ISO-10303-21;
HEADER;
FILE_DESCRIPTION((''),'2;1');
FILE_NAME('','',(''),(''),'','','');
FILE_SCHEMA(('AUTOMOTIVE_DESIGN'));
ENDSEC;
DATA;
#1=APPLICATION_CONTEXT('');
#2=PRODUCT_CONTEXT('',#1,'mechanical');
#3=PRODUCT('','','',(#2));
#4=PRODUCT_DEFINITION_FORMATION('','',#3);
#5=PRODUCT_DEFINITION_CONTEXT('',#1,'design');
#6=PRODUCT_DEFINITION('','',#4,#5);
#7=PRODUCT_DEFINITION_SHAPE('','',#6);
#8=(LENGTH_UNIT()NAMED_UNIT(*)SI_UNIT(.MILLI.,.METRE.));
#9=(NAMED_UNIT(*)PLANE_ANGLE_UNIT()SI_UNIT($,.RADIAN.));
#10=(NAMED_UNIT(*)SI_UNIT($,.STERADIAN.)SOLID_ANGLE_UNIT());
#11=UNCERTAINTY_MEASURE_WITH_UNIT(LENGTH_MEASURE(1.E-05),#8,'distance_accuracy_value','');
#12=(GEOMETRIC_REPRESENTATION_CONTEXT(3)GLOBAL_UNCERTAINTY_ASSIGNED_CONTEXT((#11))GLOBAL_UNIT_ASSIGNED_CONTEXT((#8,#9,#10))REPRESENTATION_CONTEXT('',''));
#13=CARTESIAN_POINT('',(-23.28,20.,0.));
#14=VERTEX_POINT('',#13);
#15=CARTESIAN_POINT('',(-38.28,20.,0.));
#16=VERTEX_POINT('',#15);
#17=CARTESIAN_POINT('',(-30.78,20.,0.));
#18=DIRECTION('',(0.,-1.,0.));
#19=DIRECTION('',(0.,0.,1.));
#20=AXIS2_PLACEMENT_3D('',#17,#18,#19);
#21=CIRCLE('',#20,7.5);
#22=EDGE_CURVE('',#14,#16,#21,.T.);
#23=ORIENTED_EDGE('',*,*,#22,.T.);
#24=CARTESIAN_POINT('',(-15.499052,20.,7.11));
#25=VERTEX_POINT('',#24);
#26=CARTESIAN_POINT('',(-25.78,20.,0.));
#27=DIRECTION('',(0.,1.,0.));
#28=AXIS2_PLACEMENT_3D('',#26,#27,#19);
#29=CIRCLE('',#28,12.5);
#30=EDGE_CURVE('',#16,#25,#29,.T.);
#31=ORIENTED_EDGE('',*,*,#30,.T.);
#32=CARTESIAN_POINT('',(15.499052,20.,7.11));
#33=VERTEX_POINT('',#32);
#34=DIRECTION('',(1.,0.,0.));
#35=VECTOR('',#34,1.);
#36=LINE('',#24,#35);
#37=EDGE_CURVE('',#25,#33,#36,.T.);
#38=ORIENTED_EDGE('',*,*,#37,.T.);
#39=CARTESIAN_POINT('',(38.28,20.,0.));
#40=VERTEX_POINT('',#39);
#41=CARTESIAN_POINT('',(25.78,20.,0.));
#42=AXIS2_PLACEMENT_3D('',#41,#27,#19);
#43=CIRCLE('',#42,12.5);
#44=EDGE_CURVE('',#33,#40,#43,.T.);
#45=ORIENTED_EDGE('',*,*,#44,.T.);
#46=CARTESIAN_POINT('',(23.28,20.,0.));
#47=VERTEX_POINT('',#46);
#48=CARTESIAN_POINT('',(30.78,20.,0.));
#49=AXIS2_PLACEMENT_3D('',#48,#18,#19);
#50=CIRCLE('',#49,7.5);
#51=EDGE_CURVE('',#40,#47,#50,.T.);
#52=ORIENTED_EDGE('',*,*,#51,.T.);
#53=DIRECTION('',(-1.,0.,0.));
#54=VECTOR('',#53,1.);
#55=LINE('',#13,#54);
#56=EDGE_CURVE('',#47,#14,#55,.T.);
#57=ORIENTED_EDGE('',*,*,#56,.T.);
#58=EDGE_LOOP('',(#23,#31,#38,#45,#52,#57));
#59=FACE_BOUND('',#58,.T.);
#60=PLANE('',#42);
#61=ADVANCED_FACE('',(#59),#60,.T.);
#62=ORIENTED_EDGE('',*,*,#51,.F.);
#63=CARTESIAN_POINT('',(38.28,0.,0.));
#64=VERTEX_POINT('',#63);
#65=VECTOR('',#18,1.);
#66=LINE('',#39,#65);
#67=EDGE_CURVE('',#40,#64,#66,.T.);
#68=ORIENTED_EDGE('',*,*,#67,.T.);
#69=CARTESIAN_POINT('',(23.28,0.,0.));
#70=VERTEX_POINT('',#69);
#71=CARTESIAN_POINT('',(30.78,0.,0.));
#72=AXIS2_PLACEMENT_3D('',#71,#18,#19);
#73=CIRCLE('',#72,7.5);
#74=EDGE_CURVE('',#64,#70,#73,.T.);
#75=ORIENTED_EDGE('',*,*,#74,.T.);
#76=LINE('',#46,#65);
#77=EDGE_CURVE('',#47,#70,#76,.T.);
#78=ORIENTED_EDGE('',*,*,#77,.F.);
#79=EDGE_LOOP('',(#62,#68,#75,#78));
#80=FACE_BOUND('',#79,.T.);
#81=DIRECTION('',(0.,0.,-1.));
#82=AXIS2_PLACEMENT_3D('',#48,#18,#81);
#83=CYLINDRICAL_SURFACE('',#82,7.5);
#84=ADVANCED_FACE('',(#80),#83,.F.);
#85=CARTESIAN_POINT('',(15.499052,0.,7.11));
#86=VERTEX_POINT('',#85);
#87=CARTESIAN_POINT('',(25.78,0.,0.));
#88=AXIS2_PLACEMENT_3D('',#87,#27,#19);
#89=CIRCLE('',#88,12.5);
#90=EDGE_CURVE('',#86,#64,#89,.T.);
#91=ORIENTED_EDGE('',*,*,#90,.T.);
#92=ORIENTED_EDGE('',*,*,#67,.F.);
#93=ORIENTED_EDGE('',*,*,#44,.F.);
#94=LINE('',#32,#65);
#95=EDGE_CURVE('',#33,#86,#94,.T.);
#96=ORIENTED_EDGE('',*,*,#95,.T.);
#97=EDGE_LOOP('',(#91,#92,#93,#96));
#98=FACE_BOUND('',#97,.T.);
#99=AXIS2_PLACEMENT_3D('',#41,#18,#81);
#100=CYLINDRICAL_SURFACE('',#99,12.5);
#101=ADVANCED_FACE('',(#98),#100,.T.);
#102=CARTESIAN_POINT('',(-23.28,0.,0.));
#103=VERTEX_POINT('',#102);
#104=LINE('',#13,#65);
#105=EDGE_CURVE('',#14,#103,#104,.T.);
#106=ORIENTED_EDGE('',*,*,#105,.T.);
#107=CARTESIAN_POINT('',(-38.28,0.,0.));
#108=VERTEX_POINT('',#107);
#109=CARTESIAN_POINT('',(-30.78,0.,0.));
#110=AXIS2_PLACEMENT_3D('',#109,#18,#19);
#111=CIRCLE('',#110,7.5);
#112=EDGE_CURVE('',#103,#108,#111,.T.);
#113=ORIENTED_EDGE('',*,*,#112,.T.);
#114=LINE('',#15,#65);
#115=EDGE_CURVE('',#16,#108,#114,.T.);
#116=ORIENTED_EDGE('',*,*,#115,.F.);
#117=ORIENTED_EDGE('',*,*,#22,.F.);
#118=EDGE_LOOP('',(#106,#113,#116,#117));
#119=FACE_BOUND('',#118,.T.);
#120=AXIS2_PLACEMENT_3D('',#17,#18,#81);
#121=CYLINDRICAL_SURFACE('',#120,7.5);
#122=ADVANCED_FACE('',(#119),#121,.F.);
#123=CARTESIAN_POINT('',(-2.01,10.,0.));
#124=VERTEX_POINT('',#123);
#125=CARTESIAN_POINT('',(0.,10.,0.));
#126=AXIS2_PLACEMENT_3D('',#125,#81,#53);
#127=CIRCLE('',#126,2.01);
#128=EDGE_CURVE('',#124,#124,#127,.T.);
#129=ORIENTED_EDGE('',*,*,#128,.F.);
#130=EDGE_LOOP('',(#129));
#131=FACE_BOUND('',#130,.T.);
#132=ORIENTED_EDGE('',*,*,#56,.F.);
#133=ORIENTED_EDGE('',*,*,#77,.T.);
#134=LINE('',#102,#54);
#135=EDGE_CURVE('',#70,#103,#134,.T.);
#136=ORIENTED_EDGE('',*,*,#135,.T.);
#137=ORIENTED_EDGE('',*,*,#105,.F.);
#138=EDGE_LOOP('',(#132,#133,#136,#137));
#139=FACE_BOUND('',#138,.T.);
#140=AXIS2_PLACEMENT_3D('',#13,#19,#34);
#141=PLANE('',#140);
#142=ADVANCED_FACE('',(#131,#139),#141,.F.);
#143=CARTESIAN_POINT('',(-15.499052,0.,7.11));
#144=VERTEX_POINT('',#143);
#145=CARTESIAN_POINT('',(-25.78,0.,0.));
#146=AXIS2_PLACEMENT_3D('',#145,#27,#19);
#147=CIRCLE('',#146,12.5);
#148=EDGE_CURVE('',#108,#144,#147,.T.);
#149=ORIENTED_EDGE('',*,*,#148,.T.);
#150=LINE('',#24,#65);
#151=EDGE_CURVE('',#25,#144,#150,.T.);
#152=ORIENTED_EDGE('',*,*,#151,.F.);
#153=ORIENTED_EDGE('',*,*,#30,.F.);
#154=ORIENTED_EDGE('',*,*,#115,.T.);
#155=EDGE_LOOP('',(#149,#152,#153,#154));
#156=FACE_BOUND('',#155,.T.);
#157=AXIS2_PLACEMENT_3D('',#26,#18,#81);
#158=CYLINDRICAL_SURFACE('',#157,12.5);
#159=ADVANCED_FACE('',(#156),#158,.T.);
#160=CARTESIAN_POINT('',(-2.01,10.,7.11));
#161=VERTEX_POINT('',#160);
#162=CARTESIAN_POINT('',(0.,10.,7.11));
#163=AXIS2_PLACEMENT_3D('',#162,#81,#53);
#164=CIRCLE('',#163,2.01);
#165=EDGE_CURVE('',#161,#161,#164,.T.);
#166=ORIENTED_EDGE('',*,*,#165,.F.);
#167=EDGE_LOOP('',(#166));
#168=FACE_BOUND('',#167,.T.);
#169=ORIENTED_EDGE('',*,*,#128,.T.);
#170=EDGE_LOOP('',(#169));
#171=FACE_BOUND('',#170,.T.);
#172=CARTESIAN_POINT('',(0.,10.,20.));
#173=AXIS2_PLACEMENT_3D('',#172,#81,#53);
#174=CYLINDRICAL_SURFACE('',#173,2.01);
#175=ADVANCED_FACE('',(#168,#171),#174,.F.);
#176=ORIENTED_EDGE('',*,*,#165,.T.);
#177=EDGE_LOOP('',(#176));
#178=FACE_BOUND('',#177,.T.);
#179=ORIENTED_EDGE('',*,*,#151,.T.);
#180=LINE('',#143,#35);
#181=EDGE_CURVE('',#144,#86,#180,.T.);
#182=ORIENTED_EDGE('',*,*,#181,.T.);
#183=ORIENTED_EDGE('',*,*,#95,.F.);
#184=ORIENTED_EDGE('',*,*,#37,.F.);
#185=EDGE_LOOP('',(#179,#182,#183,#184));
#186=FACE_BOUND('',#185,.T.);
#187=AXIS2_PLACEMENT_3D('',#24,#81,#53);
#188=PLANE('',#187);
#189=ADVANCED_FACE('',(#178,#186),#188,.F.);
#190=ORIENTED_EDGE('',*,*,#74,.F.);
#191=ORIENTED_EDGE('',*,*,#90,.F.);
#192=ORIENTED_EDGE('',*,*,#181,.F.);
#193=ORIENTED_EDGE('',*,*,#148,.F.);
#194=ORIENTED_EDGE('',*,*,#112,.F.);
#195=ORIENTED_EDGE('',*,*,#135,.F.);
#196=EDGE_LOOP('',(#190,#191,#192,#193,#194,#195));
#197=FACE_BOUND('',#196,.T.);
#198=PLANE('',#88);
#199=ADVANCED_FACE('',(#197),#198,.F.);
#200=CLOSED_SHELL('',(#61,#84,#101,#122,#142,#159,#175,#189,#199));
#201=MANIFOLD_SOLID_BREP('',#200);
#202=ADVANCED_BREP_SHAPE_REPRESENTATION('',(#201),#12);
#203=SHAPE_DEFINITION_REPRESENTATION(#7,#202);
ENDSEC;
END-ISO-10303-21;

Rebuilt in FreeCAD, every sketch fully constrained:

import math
import FreeCAD as App
import Part
import Sketcher
Q = App.Units.Quantity

doc = App.newDocument("Part")
body = doc.addObject("PartDesign::Body", "Body")

# Sketch on XZ plane
sketch1 = body.newObject("Sketcher::SketchObject", "Sketch")
sketch1.AttachmentSupport = (doc.getObject("XZ_Plane"), [""])
sketch1.MapMode = "FlatFace"
sketch1.addGeometry(Part.LineSegment(App.Vector(23, 0, 0), App.Vector(-23, 0, 0)), False)
sketch1.addGeometry(Part.ArcOfCircle(Part.Circle(App.Vector(-31, 0, 0), App.Vector(0, 0, 1), 8), math.radians(0), math.radians(180)), False)
sketch1.addGeometry(Part.ArcOfCircle(Part.Circle(App.Vector(-26, 0, 0), App.Vector(0, 0, 1), 12), math.radians(35), math.radians(180)), False)
sketch1.addGeometry(Part.LineSegment(App.Vector(-15, 7, 0), App.Vector(15, 7, 0)), False)
sketch1.addGeometry(Part.ArcOfCircle(Part.Circle(App.Vector(26, 0, 0), App.Vector(0, 0, 1), 12), math.radians(0), math.radians(145)), False)
sketch1.addGeometry(Part.ArcOfCircle(Part.Circle(App.Vector(31, 0, 0), App.Vector(0, 0, 1), 8), math.radians(0), math.radians(180)), False)
sketch1.addConstraint(Sketcher.Constraint("Coincident", 0, 2, 1, 1))
sketch1.addConstraint(Sketcher.Constraint("Tangent", 1, 2, 2, 2))
sketch1.addConstraint(Sketcher.Constraint("Coincident", 2, 1, 3, 1))
sketch1.addConstraint(Sketcher.Constraint("Coincident", 3, 2, 4, 2))
sketch1.addConstraint(Sketcher.Constraint("Tangent", 4, 1, 5, 1))
sketch1.addConstraint(Sketcher.Constraint("Coincident", 5, 2, 0, 1))
sketch1.addConstraint(Sketcher.Constraint("Horizontal", 0))
sketch1.addConstraint(Sketcher.Constraint("Horizontal", 3))
sketch1.addConstraint(Sketcher.Constraint("Equal", 2, 4))
sketch1.addConstraint(Sketcher.Constraint("Equal", 1, 5))
sketch1.addConstraint(Sketcher.Constraint("Symmetric", 2, 3, 4, 3, -1, 1))
sketch1.addConstraint(Sketcher.Constraint("PointOnObject", 1, 3, -1))
sketch1.addConstraint(Sketcher.Constraint("PointOnObject", 2, 3, -1))
sketch1.addConstraint(Sketcher.Constraint("PointOnObject", 5, 3, -1))
sketch1.addConstraint(Sketcher.Constraint("PointOnObject", 0, 2, -1))
sketch1.addConstraint(Sketcher.Constraint("Radius", 1, Q("7.5 mm")))
sketch1.addConstraint(Sketcher.Constraint("Radius", 2, Q("12.5 mm")))
sketch1.addConstraint(Sketcher.Constraint("DistanceX", 0, 2, 0, 1, Q("46.56 mm")))
sketch1.addConstraint(Sketcher.Constraint("DistanceY", -1, 1, 2, 1, Q("7.11 mm")))
pad1 = body.newObject("PartDesign::Pad", "Pad")
pad1.Profile = sketch1
pad1.Length = 20
pad1.Reversed = True

# Sketch on XY plane
sketch2 = body.newObject("Sketcher::SketchObject", "Sketch001")
sketch2.AttachmentSupport = (doc.getObject("XY_Plane"), [""])
sketch2.MapMode = "FlatFace"
sketch2.addGeometry(Part.Circle(App.Vector(0, 10, 0), App.Vector(0, 0, 1), 2), False)
sketch2.addConstraint(Sketcher.Constraint("PointOnObject", 0, 3, -2))
sketch2.addConstraint(Sketcher.Constraint("Diameter", 0, Q("4.02 mm")))
sketch2.addConstraint(Sketcher.Constraint("DistanceY", -1, 1, 0, 3, Q("10 mm")))
pocket1 = body.newObject("PartDesign::Pocket", "Pocket")
pocket1.Profile = sketch2
pocket1.Length = 20
pocket1.Reversed = True

doc.recompute()
